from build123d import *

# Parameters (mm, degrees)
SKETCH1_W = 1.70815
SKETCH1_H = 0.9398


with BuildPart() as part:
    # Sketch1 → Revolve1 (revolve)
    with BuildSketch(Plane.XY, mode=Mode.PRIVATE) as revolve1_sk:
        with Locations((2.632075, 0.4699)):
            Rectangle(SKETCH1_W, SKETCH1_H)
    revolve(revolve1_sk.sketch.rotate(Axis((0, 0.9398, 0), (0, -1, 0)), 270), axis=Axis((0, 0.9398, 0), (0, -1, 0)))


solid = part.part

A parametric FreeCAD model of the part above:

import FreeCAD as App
import Part
import Sketcher

V = App.Vector
Q = App.Units.Quantity

doc = App.newDocument("Part")
body = doc.addObject("PartDesign::Body", "Body")

# Sketch on XY plane
sketch1 = body.newObject("Sketcher::SketchObject", "Sketch")
sketch1.AttachmentSupport = (doc.getObject("XY_Plane"), [""])
sketch1.MapMode = "FlatFace"
sketch1.addGeometry([
    Part.LineSegment(V(1.8, 0.9, 0), V(1.8, 0, 0)),
    Part.LineSegment(V(1.8, 0, 0), V(3.5, 0, 0)),
    Part.LineSegment(V(3.5, 0, 0), V(3.5, 0.9, 0)),
    Part.LineSegment(V(3.5, 0.9, 0), V(1.8, 0.9, 0)),
], False)
sketch1.addConstraint([
    Sketcher.Constraint("Coincident", 0, 2, 1, 1),
    Sketcher.Constraint("Coincident", 1, 2, 2, 1),
    Sketcher.Constraint("Coincident", 2, 2, 3, 1),
    Sketcher.Constraint("Coincident", 3, 2, 0, 1),
    Sketcher.Constraint("Vertical", 0),
    Sketcher.Constraint("Horizontal", 1),
    Sketcher.Constraint("Vertical", 2),
    Sketcher.Constraint("Horizontal", 3),
    Sketcher.Constraint("PointOnObject", 0, 2, -1),
    Sketcher.Constraint("DistanceY", 0, 2, 0, 1, Q("0.037 in")),
    Sketcher.Constraint("DistanceX", -1, 1, 0, 2, Q("0.07 in")),
    Sketcher.Constraint("DistanceX", 1, 1, 1, 2, Q("1.70815 mm")),
])
revolution = body.newObject("PartDesign::Revolution", "Revolution")
revolution.Profile = sketch1
revolution.ReferenceAxis = (sketch1, ["V_Axis"])
revolution.Angle = 360

doc.recompute()
